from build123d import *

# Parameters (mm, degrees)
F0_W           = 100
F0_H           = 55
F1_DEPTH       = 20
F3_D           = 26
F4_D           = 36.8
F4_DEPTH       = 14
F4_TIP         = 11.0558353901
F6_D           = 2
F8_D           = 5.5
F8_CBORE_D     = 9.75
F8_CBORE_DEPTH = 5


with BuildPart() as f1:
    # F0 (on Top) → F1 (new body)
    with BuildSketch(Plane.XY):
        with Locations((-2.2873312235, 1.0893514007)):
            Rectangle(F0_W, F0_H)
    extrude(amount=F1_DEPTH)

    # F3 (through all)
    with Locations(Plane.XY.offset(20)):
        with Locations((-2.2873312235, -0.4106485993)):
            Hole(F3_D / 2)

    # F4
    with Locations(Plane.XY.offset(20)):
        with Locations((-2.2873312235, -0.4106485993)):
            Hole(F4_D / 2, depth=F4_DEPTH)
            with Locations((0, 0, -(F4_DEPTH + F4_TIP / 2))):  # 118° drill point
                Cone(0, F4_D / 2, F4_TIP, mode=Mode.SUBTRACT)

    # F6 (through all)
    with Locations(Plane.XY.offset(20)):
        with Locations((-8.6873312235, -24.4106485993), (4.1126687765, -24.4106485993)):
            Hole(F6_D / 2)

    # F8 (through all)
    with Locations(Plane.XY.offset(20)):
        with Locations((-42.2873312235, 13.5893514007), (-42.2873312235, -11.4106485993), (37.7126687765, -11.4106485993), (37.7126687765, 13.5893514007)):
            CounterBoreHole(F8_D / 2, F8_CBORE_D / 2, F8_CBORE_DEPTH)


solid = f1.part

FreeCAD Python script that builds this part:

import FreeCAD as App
import Part
import Sketcher
from FreeCAD import Vector
Q = App.Units.Quantity

doc = App.newDocument("Part")
params = doc.addObject("Spreadsheet::Sheet", "Params")
for row, (alias, value) in enumerate([
    ("sketch1_width", "100 mm"),
    ("sketch1_height", "55 mm"),
    ("pad1_length", "20 mm"),
    ("sketch2_diameter", "26 mm"),
    ("hole_diameter", "26 mm"),
    ("sketch3_diameter", "36.8 mm"),
    ("hole2_diameter", "36.8 mm"),
    ("hole2_depth", "14 mm"),
    ("sketch4_diameter", "2 mm"),
    ("hole3_diameter", "2 mm"),
    ("sketch5_diameter", "5.5 mm"),
    ("hole4_diameter", "5.5 mm"),
    ("hole4_cbore_diameter", "9.75 mm"),
    ("hole4_cbore_depth", "5 mm"),
], start=1):
    params.set(f"A{row}", alias)
    params.set(f"B{row}", "=" + value)
    params.setAlias(f"B{row}", alias)

body = doc.addObject("PartDesign::Body", "Body")

# Sketch on XY plane
sketch1 = body.newObject("Sketcher::SketchObject", "Sketch")
sketch1.AttachmentSupport = (doc.getObject("XY_Plane"), [""])
sketch1.MapMode = "FlatFace"
sketch1.addGeometry([
    Part.LineSegment(Vector(-52, 29, 0), Vector(-52, -26, 0)),
    Part.LineSegment(Vector(-52, -26, 0), Vector(48, -26, 0)),
    Part.LineSegment(Vector(48, -26, 0), Vector(48, 29, 0)),
    Part.LineSegment(Vector(48, 29, 0), Vector(-52, 29, 0)),
], False)
sketch1.addConstraint([
    Sketcher.Constraint("Coincident", 0, 2, 1, 1),
    Sketcher.Constraint("Coincident", 1, 2, 2, 1),
    Sketcher.Constraint("Coincident", 2, 2, 3, 1),
    Sketcher.Constraint("Coincident", 3, 2, 0, 1),
    Sketcher.Constraint("Vertical", 0),
    Sketcher.Constraint("Horizontal", 1),
    Sketcher.Constraint("Vertical", 2),
    Sketcher.Constraint("Horizontal", 3),
    Sketcher.Constraint("DistanceX", 1, 1, 1, 2, Q("100 mm")),
    Sketcher.Constraint("DistanceY", 0, 2, 0, 1, Q("55 mm")),
    Sketcher.Constraint("DistanceX", 0, 2, -1, 1, Q("52.287331 mm")),
    Sketcher.Constraint("DistanceY", 0, 2, -1, 1, Q("26.410649 mm")),
])
sketch1.setExpression("Constraints[8]", "Params.sketch1_width")
sketch1.setExpression("Constraints[9]", "Params.sketch1_height")
pad1 = body.newObject("PartDesign::Pad", "Pad")
pad1.Profile = sketch1
pad1.setExpression("Length", "Params.pad1_length")

# Sketch on XY plane
sketch2 = body.newObject("Sketcher::SketchObject", "Sketch001")
sketch2.AttachmentSupport = (doc.getObject("XY_Plane"), [""])
sketch2.MapMode = "FlatFace"
sketch2.AttachmentOffset = App.Placement(Vector(0, 0, 20), App.Rotation())
sketch2.addGeometry(Part.Circle(Vector(-2, 0, 0), Vector(0, 0, 1), 13), False)
sketch2.addConstraint([
    Sketcher.Constraint("Diameter", 0, Q("26 mm")),
    Sketcher.Constraint("DistanceX", 0, 3, -1, 1, Q("2.287331 mm")),
    Sketcher.Constraint("DistanceY", 0, 3, -1, 1, Q("0.410649 mm")),
])
sketch2.setExpression("Constraints[0]", "Params.sketch2_diameter")
doc.recompute()
hole = body.newObject("PartDesign::Hole", "Hole")
hole.Profile = sketch2
hole.ThreadType = "None"
hole.setExpression("Diameter", "Params.hole_diameter")
hole.DepthType = "ThroughAll"

# Sketch on XY plane
sketch3 = body.newObject("Sketcher::SketchObject", "Sketch002")
sketch3.AttachmentSupport = (doc.getObject("XY_Plane"), [""])
sketch3.MapMode = "FlatFace"
sketch3.AttachmentOffset = App.Placement(Vector(0, 0, 20), App.Rotation())
sketch3.addGeometry(Part.Circle(Vector(-2, 0, 0), Vector(0, 0, 1), 18), False)
sketch3.addConstraint([
    Sketcher.Constraint("Diameter", 0, Q("36.8 mm")),
    Sketcher.Constraint("DistanceX", 0, 3, -1, 1, Q("2.287331 mm")),
    Sketcher.Constraint("DistanceY", 0, 3, -1, 1, Q("0.410649 mm")),
])
sketch3.setExpression("Constraints[0]", "Params.sketch3_diameter")
doc.recompute()
hole2 = body.newObject("PartDesign::Hole", "Hole001")
hole2.Profile = sketch3
hole2.ThreadType = "None"
hole2.setExpression("Diameter", "Params.hole2_diameter")
hole2.DepthType = "Dimension"
hole2.setExpression("Depth", "Params.hole2_depth")
hole2.DrillPoint = "Angled"
hole2.DrillPointAngle = 118

# Sketch on XY plane
sketch4 = body.newObject("Sketcher::SketchObject", "Sketch003")
sketch4.AttachmentSupport = (doc.getObject("XY_Plane"), [""])
sketch4.MapMode = "FlatFace"
sketch4.AttachmentOffset = App.Placement(Vector(0, 0, 20), App.Rotation())
sketch4.addGeometry([
    Part.Circle(Vector(-8.7, -24.4, 0), Vector(0, 0, 1), 1),
    Part.Circle(Vector(4.1, -24.4, 0), Vector(0, 0, 1), 1),
], False)
sketch4.addConstraint([
    Sketcher.Constraint("Equal", 0, 1),
    Sketcher.Constraint("Horizontal", 0, 3, 1, 3),
    Sketcher.Constraint("Diameter", 0, Q("2 mm")),
    Sketcher.Constraint("DistanceX", 0, 3, 1, 3, Q("12.8 mm")),
    Sketcher.Constraint("DistanceX", 0, 3, -1, 1, Q("8.687331 mm")),
    Sketcher.Constraint("DistanceY", 0, 3, -1, 1, Q("24.410649 mm")),
])
sketch4.setExpression("Constraints[2]", "Params.sketch4_diameter")
doc.recompute()
hole3 = body.newObject("PartDesign::Hole", "Hole002")
hole3.Profile = sketch4
hole3.ThreadType = "None"
hole3.setExpression("Diameter", "Params.hole3_diameter")
hole3.DepthType = "ThroughAll"

# Sketch on XY plane
sketch5 = body.newObject("Sketcher::SketchObject", "Sketch004")
sketch5.AttachmentSupport = (doc.getObject("XY_Plane"), [""])
sketch5.MapMode = "FlatFace"
sketch5.AttachmentOffset = App.Placement(Vector(0, 0, 20), App.Rotation())
sketch5.addGeometry([
    Part.Circle(Vector(-42.3, 13.6, 0), Vector(0, 0, 1), 2.8),
    Part.Circle(Vector(-42.3, -11.4, 0), Vector(0, 0, 1), 2.8),
    Part.Circle(Vector(37.7, -11.4, 0), Vector(0, 0, 1), 2.8),
    Part.Circle(Vector(37.7, 13.6, 0), Vector(0, 0, 1), 2.8),
], False)
sketch5.addConstraint([
    Sketcher.Constraint("Equal", 0, 1),
    Sketcher.Constraint("Equal", 1, 2),
    Sketcher.Constraint("Equal", 2, 3),
    Sketcher.Constraint("Horizontal", 1, 3, 2, 3),
    Sketcher.Constraint("Horizontal", 0, 3, 3, 3),
    Sketcher.Constraint("Vertical", 0, 3, 1, 3),
    Sketcher.Constraint("Vertical", 2, 3, 3, 3),
    Sketcher.Constraint("Diameter", 0, Q("5.5 mm")),
    Sketcher.Constraint("DistanceY", 1, 3, 0, 3, Q("25 mm")),
    Sketcher.Constraint("DistanceX", 1, 3, 2, 3, Q("80 mm")),
    Sketcher.Constraint("DistanceX", 0, 3, -1, 1, Q("42.287331 mm")),
    Sketcher.Constraint("DistanceY", -1, 1, 0, 3, Q("13.589351 mm")),
])
sketch5.setExpression("Constraints[7]", "Params.sketch5_diameter")
doc.recompute()
hole4 = body.newObject("PartDesign::Hole", "Hole003")
hole4.Profile = sketch5
hole4.ThreadType = "None"
hole4.setExpression("Diameter", "Params.hole4_diameter")
hole4.DepthType = "ThroughAll"
hole4.HoleCutType = "Counterbore"
hole4.setExpression("HoleCutDiameter", "Params.hole4_cbore_diameter")
hole4.setExpression("HoleCutDepth", "Params.hole4_cbore_depth")

doc.recompute()
